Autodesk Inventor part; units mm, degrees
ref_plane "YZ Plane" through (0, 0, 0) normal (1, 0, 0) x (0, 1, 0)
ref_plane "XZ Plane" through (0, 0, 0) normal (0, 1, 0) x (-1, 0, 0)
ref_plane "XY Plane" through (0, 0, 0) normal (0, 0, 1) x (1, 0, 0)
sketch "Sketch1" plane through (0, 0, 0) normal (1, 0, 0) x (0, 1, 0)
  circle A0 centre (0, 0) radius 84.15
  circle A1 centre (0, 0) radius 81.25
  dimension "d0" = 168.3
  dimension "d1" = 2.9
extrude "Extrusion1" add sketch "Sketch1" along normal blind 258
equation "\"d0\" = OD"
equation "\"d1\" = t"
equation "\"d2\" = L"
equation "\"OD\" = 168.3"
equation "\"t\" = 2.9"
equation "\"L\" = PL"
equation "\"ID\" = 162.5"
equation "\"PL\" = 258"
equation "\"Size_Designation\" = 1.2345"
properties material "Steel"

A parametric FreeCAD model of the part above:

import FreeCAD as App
import Part
import Sketcher
Q = App.Units.Quantity

doc = App.newDocument("Part")
params = doc.addObject("Spreadsheet::Sheet", "Params")
for row, (alias, value) in enumerate([
    ("sketch1_diameter", "168.3 mm"),
    ("sketch1_diameter2", "162.5 mm"),
    ("pad1_length", "258 mm"),
], start=1):
    params.set(f"A{row}", alias)
    params.set(f"B{row}", "=" + value)
    params.setAlias(f"B{row}", alias)

body = doc.addObject("PartDesign::Body", "Body")

# Sketch on YZ plane
sketch1 = body.newObject("Sketcher::SketchObject", "Sketch")
sketch1.AttachmentSupport = (doc.getObject("YZ_Plane"), [""])
sketch1.MapMode = "FlatFace"
sketch1.addGeometry([
    Part.Circle(App.Vector(0, 0, 0), App.Vector(0, 0, 1), 84.15),
    Part.Circle(App.Vector(0, 0, 0), App.Vector(0, 0, 1), 81.25),
], False)
sketch1.addConstraint([
    Sketcher.Constraint("Coincident", 0, 3, -1, 1),
    Sketcher.Constraint("Coincident", 1, 3, -1, 1),
    Sketcher.Constraint("Diameter", 0, Q("168.3 mm")),
    Sketcher.Constraint("Diameter", 1, Q("162.5 mm")),
])
sketch1.setExpression("Constraints[2]", "Params.sketch1_diameter")
sketch1.setExpression("Constraints[3]", "Params.sketch1_diameter2")
pad1 = body.newObject("PartDesign::Pad", "Pad")
pad1.Profile = sketch1
pad1.setExpression("Length", "Params.pad1_length")

doc.recompute()
